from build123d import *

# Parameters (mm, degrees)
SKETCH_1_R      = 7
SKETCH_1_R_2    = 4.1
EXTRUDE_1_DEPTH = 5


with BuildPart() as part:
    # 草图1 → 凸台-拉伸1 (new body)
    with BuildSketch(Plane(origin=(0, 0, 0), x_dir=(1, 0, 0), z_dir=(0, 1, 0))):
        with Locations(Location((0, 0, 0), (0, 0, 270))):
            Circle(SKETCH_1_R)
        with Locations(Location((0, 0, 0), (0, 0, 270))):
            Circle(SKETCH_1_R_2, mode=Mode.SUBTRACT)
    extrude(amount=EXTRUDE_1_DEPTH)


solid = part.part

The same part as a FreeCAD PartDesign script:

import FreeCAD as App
import Part
import Sketcher
Q = App.Units.Quantity

doc = App.newDocument("Part")
body = doc.addObject("PartDesign::Body", "Body")

sketch1 = body.newObject("Sketcher::SketchObject", "Sketch")
sketch1.AttachmentSupport = (doc.getObject("XZ_Plane"), [""])
sketch1.MapMode = "FlatFace"
sketch1.addGeometry(Part.Circle(App.Vector(0, 0, 0), App.Vector(0, 0, 1), 7), False)
sketch1.addGeometry(Part.Circle(App.Vector(0, 0, 0), App.Vector(0, 0, 1), 4.1), False)
sketch1.addConstraint(Sketcher.Constraint("Coincident", 0, 3, -1, 1))
sketch1.addConstraint(Sketcher.Constraint("Coincident", 1, 3, -1, 1))
sketch1.addConstraint(Sketcher.Constraint("Diameter", 0, Q("14 mm")))
sketch1.addConstraint(Sketcher.Constraint("Diameter", 1, Q("8.2 mm")))
pad1 = body.newObject("PartDesign::Pad", "Pad")
pad1.Profile = sketch1
pad1.Length = 5
pad1.Reversed = True

doc.recompute()
